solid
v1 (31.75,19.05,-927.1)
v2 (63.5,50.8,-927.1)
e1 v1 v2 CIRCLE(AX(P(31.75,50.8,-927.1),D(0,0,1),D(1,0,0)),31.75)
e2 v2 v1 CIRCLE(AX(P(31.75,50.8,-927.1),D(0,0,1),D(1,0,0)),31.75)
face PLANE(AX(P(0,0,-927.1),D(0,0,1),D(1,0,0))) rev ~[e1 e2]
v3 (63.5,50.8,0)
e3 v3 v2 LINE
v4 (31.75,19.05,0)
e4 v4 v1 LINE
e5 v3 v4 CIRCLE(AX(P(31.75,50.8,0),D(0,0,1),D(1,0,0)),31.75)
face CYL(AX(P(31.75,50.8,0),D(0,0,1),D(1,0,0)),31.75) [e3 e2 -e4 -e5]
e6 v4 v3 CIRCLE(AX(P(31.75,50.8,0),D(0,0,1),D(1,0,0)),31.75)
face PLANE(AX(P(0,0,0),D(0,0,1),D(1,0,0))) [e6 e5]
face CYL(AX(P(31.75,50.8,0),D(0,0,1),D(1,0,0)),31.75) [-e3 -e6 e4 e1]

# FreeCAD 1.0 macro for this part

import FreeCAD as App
import Part
import Sketcher
from FreeCAD import Vector
Q = App.Units.Quantity

doc = App.newDocument("Part")
body = doc.addObject("PartDesign::Body", "Body")

# Sketch on XY plane
sketch1 = body.newObject("Sketcher::SketchObject", "Sketch")
sketch1.AttachmentSupport = (doc.getObject("XY_Plane"), [""])
sketch1.MapMode = "FlatFace"
sketch1.addGeometry(Part.Circle(Vector(32, 51, 0), Vector(0, 0, 1), 32), False)
sketch1.addConstraint([
    Sketcher.Constraint("Diameter", 0, Q("2.5 in")),
    Sketcher.Constraint("DistanceY", -1, 1, 0, 3, Q("2 in")),
    Sketcher.Constraint("DistanceX", -1, 1, 0, 3, Q("1.25 in")),
])
pad1 = body.newObject("PartDesign::Pad", "Pad")
pad1.Profile = sketch1
pad1.Length = Q("36.5 in")
pad1.Reversed = True

doc.recompute()
